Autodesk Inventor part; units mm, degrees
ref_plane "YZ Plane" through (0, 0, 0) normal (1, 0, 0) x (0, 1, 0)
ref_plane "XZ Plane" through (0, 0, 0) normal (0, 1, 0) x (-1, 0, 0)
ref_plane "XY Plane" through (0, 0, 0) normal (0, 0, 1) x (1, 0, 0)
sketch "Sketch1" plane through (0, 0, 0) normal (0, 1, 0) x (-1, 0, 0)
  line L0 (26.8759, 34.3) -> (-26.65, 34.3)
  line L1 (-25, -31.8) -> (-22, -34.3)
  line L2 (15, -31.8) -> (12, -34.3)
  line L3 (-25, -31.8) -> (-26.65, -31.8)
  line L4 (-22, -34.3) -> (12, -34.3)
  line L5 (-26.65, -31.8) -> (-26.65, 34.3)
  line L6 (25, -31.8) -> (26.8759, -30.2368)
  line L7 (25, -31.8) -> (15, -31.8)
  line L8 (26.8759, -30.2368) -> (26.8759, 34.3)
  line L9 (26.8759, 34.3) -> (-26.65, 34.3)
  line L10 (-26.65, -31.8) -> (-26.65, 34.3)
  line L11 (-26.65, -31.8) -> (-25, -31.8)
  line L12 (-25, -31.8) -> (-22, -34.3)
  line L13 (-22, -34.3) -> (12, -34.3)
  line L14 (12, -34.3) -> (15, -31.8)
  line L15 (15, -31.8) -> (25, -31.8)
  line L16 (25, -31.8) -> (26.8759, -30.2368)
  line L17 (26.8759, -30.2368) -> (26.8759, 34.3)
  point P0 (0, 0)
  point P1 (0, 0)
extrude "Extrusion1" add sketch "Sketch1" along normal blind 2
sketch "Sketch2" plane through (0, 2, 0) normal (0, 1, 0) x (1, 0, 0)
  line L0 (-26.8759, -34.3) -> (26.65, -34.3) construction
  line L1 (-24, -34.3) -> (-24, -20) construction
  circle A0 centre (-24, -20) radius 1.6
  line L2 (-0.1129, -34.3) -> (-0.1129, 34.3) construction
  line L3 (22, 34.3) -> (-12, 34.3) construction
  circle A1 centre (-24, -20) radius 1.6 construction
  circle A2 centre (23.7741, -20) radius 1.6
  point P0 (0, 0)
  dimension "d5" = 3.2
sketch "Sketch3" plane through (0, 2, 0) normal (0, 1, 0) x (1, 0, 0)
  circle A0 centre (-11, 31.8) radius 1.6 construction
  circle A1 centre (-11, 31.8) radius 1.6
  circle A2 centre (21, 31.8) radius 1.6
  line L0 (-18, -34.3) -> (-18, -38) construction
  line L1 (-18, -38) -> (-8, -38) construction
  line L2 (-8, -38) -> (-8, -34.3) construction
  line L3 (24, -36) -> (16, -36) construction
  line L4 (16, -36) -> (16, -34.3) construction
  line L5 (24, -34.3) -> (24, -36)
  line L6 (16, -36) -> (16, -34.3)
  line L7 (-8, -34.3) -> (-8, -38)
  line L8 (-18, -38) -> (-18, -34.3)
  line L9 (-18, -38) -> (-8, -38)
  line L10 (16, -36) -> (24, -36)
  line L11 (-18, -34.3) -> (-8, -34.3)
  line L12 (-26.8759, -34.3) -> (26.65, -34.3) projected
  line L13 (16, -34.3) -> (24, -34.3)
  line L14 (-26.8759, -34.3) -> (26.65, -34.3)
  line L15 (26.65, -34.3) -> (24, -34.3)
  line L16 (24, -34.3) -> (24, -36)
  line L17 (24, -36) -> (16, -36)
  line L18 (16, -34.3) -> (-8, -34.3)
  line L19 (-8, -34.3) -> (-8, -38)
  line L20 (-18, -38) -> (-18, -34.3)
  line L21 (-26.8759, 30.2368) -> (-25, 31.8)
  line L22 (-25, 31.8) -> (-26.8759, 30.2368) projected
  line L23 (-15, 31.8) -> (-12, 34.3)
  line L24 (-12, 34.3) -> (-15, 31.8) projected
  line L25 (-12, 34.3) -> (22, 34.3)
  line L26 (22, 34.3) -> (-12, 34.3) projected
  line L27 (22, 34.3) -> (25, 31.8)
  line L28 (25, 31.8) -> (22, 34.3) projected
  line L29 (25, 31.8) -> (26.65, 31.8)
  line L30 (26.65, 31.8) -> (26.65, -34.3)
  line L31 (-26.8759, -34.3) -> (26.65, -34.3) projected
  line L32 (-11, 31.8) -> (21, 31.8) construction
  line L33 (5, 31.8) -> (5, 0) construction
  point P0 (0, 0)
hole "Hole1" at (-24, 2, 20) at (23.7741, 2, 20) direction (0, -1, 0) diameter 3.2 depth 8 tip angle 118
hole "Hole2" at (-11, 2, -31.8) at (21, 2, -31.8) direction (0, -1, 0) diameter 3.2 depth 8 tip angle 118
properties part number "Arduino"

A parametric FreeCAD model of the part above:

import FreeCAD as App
import Part
import Sketcher
from FreeCAD import Vector
Q = App.Units.Quantity

doc = App.newDocument("Part")
body = doc.addObject("PartDesign::Body", "Body")

# Sketch on XZ plane
sketch1 = doc.addObject("Sketcher::SketchObject", "Sketch")
body.addObject(sketch1)
sketch1.AttachmentSupport = (doc.XZ_Plane, [""])
sketch1.MapMode = "FlatFace"
sketch1.addGeometry([
    Part.LineSegment(Vector(-26.9, -30.2, 0), Vector(-26.9, 34.3, 0)),  # 0
    Part.LineSegment(Vector(-26.9, 34.3, 0), Vector(26.6, 34.3, 0)),  # 1
    Part.LineSegment(Vector(26.6, 34.3, 0), Vector(26.6, -31.8, 0)),  # 2
    Part.LineSegment(Vector(26.6, -31.8, 0), Vector(25, -31.8, 0)),  # 3
    Part.LineSegment(Vector(25, -31.8, 0), Vector(22, -34.3, 0)),  # 4
    Part.LineSegment(Vector(22, -34.3, 0), Vector(-12, -34.3, 0)),  # 5
    Part.LineSegment(Vector(-12, -34.3, 0), Vector(-15, -31.8, 0)),  # 6
    Part.LineSegment(Vector(-15, -31.8, 0), Vector(-25, -31.8, 0)),  # 7
    Part.LineSegment(Vector(-25, -31.8, 0), Vector(-26.9, -30.2, 0)),  # 8
], False)
sketch1.addConstraint([
    Sketcher.Constraint("Coincident", 0, 2, 1, 1),
    Sketcher.Constraint("Coincident", 1, 2, 2, 1),
    Sketcher.Constraint("Coincident", 2, 2, 3, 1),
    Sketcher.Constraint("Coincident", 3, 2, 4, 1),
    Sketcher.Constraint("Coincident", 4, 2, 5, 1),
    Sketcher.Constraint("Coincident", 5, 2, 6, 1),
    Sketcher.Constraint("Coincident", 6, 2, 7, 1),
    Sketcher.Constraint("Coincident", 7, 2, 8, 1),
    Sketcher.Constraint("Coincident", 8, 2, 0, 1),
    Sketcher.Constraint("Vertical", 0),
    Sketcher.Constraint("Horizontal", 1),
    Sketcher.Constraint("Vertical", 2),
    Sketcher.Constraint("Horizontal", 3),
    Sketcher.Constraint("Horizontal", 5),
    Sketcher.Constraint("Horizontal", 7),
    Sketcher.Constraint("Symmetric", 3, 2, 7, 2, -2),
    Sketcher.Constraint("Parallel", 6, 8),
    Sketcher.Constraint("Equal", 4, 6),
    Sketcher.Constraint("DistanceX", 5, 2, 5, 1, Q("34 mm")),
    Sketcher.Constraint("DistanceX", 7, 2, 7, 1, Q("10 mm")),
    Sketcher.Constraint("DistanceY", 2, 2, 2, 1, Q("66.1 mm")),
    Sketcher.Constraint("DistanceX", -1, 1, 3, 2, Q("25 mm")),
    Sketcher.Constraint("DistanceX", 3, 2, 3, 1, Q("1.65 mm")),
    Sketcher.Constraint("DistanceY", -1, 1, 0, 2, Q("34.3 mm")),
    Sketcher.Constraint("DistanceY", 4, 2, -1, 1, Q("34.3 mm")),
    Sketcher.Constraint("DistanceX", 1, 1, 1, 2, Q("53.526 mm")),
])
pad1 = doc.addObject("PartDesign::Pad", "Pad")
body.addObject(pad1)
pad1.Profile = sketch1
pad1.Length = 2
pad1.Reversed = True

# Sketch on XZ plane
sketch2 = doc.addObject("Sketcher::SketchObject", "Sketch001")
body.addObject(sketch2)
sketch2.AttachmentSupport = (doc.XZ_Plane, [""])
sketch2.MapMode = "FlatFace"
sketch2.AttachmentOffset = App.Placement(Vector(0, 0, -2), App.Rotation())
sketch2.addGeometry([
    Part.Circle(Vector(-24, 20, 0), Vector(0, 0, 1), 1.6),
    Part.Circle(Vector(23.8, 20, 0), Vector(0, 0, 1), 1.6),
], False)
sketch2.addConstraint([
    Sketcher.Constraint("Equal", 0, 1),
    Sketcher.Constraint("Horizontal", 0, 3, 1, 3),
    Sketcher.Constraint("Diameter", 0, Q("3.2 mm")),
    Sketcher.Constraint("DistanceX", 0, 3, -1, 1, Q("24 mm")),
    Sketcher.Constraint("DistanceY", -1, 1, 0, 3, Q("20 mm")),
    Sketcher.Constraint("DistanceX", -1, 1, 1, 3, Q("23.774 mm")),
])
doc.recompute()
hole = doc.addObject("PartDesign::Hole", "Hole")
body.addObject(hole)
hole.Profile = sketch2
hole.ThreadType = "None"
hole.Diameter = 3.2
hole.DepthType = "Dimension"
hole.Depth = 8
hole.DrillPoint = "Angled"
hole.DrillPointAngle = 118
hole.Reversed = True

# Sketch on XZ plane
sketch3 = doc.addObject("Sketcher::SketchObject", "Sketch002")
body.addObject(sketch3)
sketch3.AttachmentSupport = (doc.XZ_Plane, [""])
sketch3.MapMode = "FlatFace"
sketch3.AttachmentOffset = App.Placement(Vector(0, 0, -2), App.Rotation())
sketch3.addGeometry([
    Part.Circle(Vector(-11, -31.8, 0), Vector(0, 0, 1), 1.6),
    Part.Circle(Vector(21, -31.8, 0), Vector(0, 0, 1), 1.6),
], False)
sketch3.addConstraint([
    Sketcher.Constraint("Equal", 0, 1),
    Sketcher.Constraint("Horizontal", 0, 3, 1, 3),
    Sketcher.Constraint("Diameter", 0, Q("3.2 mm")),
    Sketcher.Constraint("DistanceX", 0, 3, -1, 1, Q("11 mm")),
    Sketcher.Constraint("DistanceX", -1, 1, 1, 3, Q("21 mm")),
    Sketcher.Constraint("DistanceY", 0, 3, -1, 1, Q("31.8 mm")),
])
doc.recompute()
hole2 = doc.addObject("PartDesign::Hole", "Hole001")
body.addObject(hole2)
hole2.Profile = sketch3
hole2.ThreadType = "None"
hole2.Diameter = 3.2
hole2.DepthType = "Dimension"
hole2.Depth = 8
hole2.DrillPoint = "Angled"
hole2.DrillPointAngle = 118
hole2.Reversed = True

doc.recompute()
